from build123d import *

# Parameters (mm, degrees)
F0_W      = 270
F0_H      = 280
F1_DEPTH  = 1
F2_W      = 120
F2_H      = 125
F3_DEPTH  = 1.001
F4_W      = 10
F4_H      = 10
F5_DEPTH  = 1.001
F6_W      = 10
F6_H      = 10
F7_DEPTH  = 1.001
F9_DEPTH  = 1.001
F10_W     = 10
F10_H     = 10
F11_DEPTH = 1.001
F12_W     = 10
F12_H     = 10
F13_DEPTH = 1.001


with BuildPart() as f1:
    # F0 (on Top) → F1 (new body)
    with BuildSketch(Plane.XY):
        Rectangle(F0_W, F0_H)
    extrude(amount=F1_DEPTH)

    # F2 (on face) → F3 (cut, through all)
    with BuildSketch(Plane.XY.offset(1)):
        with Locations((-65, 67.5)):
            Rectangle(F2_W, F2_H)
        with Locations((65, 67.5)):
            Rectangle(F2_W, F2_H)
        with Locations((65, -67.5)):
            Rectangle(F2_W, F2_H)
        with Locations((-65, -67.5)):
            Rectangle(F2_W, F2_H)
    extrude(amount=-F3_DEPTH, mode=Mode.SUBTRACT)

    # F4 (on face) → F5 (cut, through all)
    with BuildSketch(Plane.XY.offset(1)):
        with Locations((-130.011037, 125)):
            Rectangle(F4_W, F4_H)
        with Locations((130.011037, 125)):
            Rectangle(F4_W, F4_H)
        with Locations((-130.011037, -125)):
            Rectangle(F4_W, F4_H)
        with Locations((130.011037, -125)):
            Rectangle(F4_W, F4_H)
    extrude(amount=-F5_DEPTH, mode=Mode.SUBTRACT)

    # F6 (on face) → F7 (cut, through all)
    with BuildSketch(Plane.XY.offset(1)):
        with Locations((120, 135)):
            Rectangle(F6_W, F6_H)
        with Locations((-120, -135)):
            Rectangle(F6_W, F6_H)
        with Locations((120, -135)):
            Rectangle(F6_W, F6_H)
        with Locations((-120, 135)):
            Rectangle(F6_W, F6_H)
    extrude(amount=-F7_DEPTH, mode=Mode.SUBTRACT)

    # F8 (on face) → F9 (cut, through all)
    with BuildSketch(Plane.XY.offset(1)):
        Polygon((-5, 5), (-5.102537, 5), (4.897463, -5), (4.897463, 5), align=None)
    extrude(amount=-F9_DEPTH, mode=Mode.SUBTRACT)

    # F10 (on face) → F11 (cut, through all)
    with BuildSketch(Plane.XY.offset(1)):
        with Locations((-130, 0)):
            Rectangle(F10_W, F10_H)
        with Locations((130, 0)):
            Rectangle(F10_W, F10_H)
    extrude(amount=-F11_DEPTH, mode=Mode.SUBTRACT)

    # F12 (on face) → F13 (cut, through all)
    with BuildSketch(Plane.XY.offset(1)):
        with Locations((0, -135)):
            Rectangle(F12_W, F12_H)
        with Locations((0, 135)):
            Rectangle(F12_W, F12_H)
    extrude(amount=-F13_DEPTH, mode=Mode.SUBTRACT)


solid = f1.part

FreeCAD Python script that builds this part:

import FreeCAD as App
import Part
import Sketcher

V = App.Vector

doc = App.newDocument("Part")
body = doc.addObject("PartDesign::Body", "Body")
body.AllowCompound = True

sketch1 = body.newObject("Sketcher::SketchObject", "Sketch")
sketch1.AttachmentSupport = (doc.getObject("XY_Plane"), [""])
sketch1.MapMode = "FlatFace"
sketch1.addGeometry(Part.LineSegment(V(-135, 140, 0), V(-135, -140, 0)), False)
sketch1.addGeometry(Part.LineSegment(V(-135, -140, 0), V(135, -140, 0)), False)
sketch1.addGeometry(Part.LineSegment(V(135, -140, 0), V(135, 140, 0)), False)
sketch1.addGeometry(Part.LineSegment(V(135, 140, 0), V(-135, 140, 0)), False)
sketch1.addConstraint(Sketcher.Constraint("Coincident", 0, 2, 1, 1))
sketch1.addConstraint(Sketcher.Constraint("Coincident", 1, 2, 2, 1))
sketch1.addConstraint(Sketcher.Constraint("Coincident", 2, 2, 3, 1))
sketch1.addConstraint(Sketcher.Constraint("Coincident", 3, 2, 0, 1))
sketch1.addConstraint(Sketcher.Constraint("Vertical", 0))
sketch1.addConstraint(Sketcher.Constraint("Horizontal", 1))
sketch1.addConstraint(Sketcher.Constraint("Vertical", 2))
sketch1.addConstraint(Sketcher.Constraint("Horizontal", 3))
sketch1.addConstraint(Sketcher.Constraint("Symmetric", 0, 2, 2, 2, -1, 1))
sketch1.addConstraint(Sketcher.Constraint("DistanceX", 1, 1, 1, 2, 270.0))
sketch1.addConstraint(Sketcher.Constraint("DistanceY", 0, 2, 0, 1, 280.0))
pad1 = body.newObject("PartDesign::Pad", "Pad")
pad1.Profile = sketch1
pad1.Length = 1

sketch2 = body.newObject("Sketcher::SketchObject", "Sketch001")
sketch2.AttachmentSupport = (doc.getObject("XY_Plane"), [""])
sketch2.MapMode = "FlatFace"
sketch2.AttachmentOffset = App.Placement(V(0, 0, 1), App.Rotation())
sketch2.addGeometry(Part.LineSegment(V(-125, 130, 0), V(-125, 5, 0)), False)
sketch2.addGeometry(Part.LineSegment(V(-125, 5, 0), V(-5, 5, 0)), False)
sketch2.addGeometry(Part.LineSegment(V(-5, 5, 0), V(-5, 130, 0)), False)
sketch2.addGeometry(Part.LineSegment(V(-5, 130, 0), V(-125, 130, 0)), False)
sketch2.addGeometry(Part.LineSegment(V(5, 130, 0), V(5, 5, 0)), False)
sketch2.addGeometry(Part.LineSegment(V(5, 5, 0), V(125, 5, 0)), False)
sketch2.addGeometry(Part.LineSegment(V(125, 5, 0), V(125, 130, 0)), False)
sketch2.addGeometry(Part.LineSegment(V(125, 130, 0), V(5, 130, 0)), False)
sketch2.addGeometry(Part.LineSegment(V(5, -5, 0), V(5, -130, 0)), False)
sketch2.addGeometry(Part.LineSegment(V(5, -130, 0), V(125, -130, 0)), False)
sketch2.addGeometry(Part.LineSegment(V(125, -130, 0), V(125, -5, 0)), False)
sketch2.addGeometry(Part.LineSegment(V(125, -5, 0), V(5, -5, 0)), False)
sketch2.addGeometry(Part.LineSegment(V(-125, -5, 0), V(-125, -130, 0)), False)
sketch2.addGeometry(Part.LineSegment(V(-125, -130, 0), V(-5, -130, 0)), False)
sketch2.addGeometry(Part.LineSegment(V(-5, -130, 0), V(-5, -5, 0)), False)
sketch2.addGeometry(Part.LineSegment(V(-5, -5, 0), V(-125, -5, 0)), False)
sketch2.addConstraint(Sketcher.Constraint("Coincident", 0, 2, 1, 1))
sketch2.addConstraint(Sketcher.Constraint("Coincident", 1, 2, 2, 1))
sketch2.addConstraint(Sketcher.Constraint("Coincident", 2, 2, 3, 1))
sketch2.addConstraint(Sketcher.Constraint("Coincident", 3, 2, 0, 1))
sketch2.addConstraint(Sketcher.Constraint("Coincident", 4, 2, 5, 1))
sketch2.addConstraint(Sketcher.Constraint("Coincident", 5, 2, 6, 1))
sketch2.addConstraint(Sketcher.Constraint("Coincident", 6, 2, 7, 1))
sketch2.addConstraint(Sketcher.Constraint("Coincident", 7, 2, 4, 1))
sketch2.addConstraint(Sketcher.Constraint("Coincident", 8, 2, 9, 1))
sketch2.addConstraint(Sketcher.Constraint("Coincident", 9, 2, 10, 1))
sketch2.addConstraint(Sketcher.Constraint("Coincident", 10, 2, 11, 1))
sketch2.addConstraint(Sketcher.Constraint("Coincident", 11, 2, 8, 1))
sketch2.addConstraint(Sketcher.Constraint("Coincident", 12, 2, 13, 1))
sketch2.addConstraint(Sketcher.Constraint("Coincident", 13, 2, 14, 1))
sketch2.addConstraint(Sketcher.Constraint("Coincident", 14, 2, 15, 1))
sketch2.addConstraint(Sketcher.Constraint("Coincident", 15, 2, 12, 1))
sketch2.addConstraint(Sketcher.Constraint("Vertical", 0))
sketch2.addConstraint(Sketcher.Constraint("Horizontal", 1))
sketch2.addConstraint(Sketcher.Constraint("Vertical", 2))
sketch2.addConstraint(Sketcher.Constraint("Horizontal", 3))
sketch2.addConstraint(Sketcher.Constraint("Vertical", 4))
sketch2.addConstraint(Sketcher.Constraint("Horizontal", 5))
sketch2.addConstraint(Sketcher.Constraint("Vertical", 6))
sketch2.addConstraint(Sketcher.Constraint("Horizontal", 7))
sketch2.addConstraint(Sketcher.Constraint("Vertical", 8))
sketch2.addConstraint(Sketcher.Constraint("Horizontal", 9))
sketch2.addConstraint(Sketcher.Constraint("Vertical", 10))
sketch2.addConstraint(Sketcher.Constraint("Horizontal", 11))
sketch2.addConstraint(Sketcher.Constraint("Vertical", 12))
sketch2.addConstraint(Sketcher.Constraint("Horizontal", 13))
sketch2.addConstraint(Sketcher.Constraint("Vertical", 14))
sketch2.addConstraint(Sketcher.Constraint("Horizontal", 15))
sketch2.addConstraint(Sketcher.Constraint("Symmetric", 2, 2, 8, 2, -1, 1))
sketch2.addConstraint(Sketcher.Constraint("Symmetric", 0, 2, 10, 2, -1, 1))
sketch2.addConstraint(Sketcher.Constraint("Symmetric", 6, 2, 12, 2, -1, 1))
sketch2.addConstraint(Sketcher.Constraint("Symmetric", 4, 2, 14, 2, -1, 1))
sketch2.addConstraint(Sketcher.Constraint("Symmetric", 1, 2, 4, 2, -2))
sketch2.addConstraint(Sketcher.Constraint("Symmetric", 3, 2, 6, 2, -2))
sketch2.addConstraint(Sketcher.Constraint("DistanceX", 1, 1, 1, 2, 120.0))
sketch2.addConstraint(Sketcher.Constraint("DistanceY", 0, 2, 0, 1, 125.0))
sketch2.addConstraint(Sketcher.Constraint("DistanceX", 0, 2, -1, 1, 125.0))
sketch2.addConstraint(Sketcher.Constraint("DistanceY", -1, 1, 0, 2, 5.0))
pocket1 = body.newObject("PartDesign::Pocket", "Pocket")
pocket1.Profile = sketch2
pocket1.Type = "ThroughAll"

sketch3 = body.newObject("Sketcher::SketchObject", "Sketch002")
sketch3.AttachmentSupport = (doc.getObject("XY_Plane"), [""])
sketch3.MapMode = "FlatFace"
sketch3.AttachmentOffset = App.Placement(V(0, 0, 1), App.Rotation())
sketch3.addGeometry(Part.LineSegment(V(-135, 130, 0), V(-135, 120, 0)), False)
sketch3.addGeometry(Part.LineSegment(V(-135, 120, 0), V(-125, 120, 0)), False)
sketch3.addGeometry(Part.LineSegment(V(-125, 120, 0), V(-125, 130, 0)), False)
sketch3.addGeometry(Part.LineSegment(V(-125, 130, 0), V(-135, 130, 0)), False)
sketch3.addGeometry(Part.LineSegment(V(125, 130, 0), V(125, 120, 0)), False)
sketch3.addGeometry(Part.LineSegment(V(125, 120, 0), V(135, 120, 0)), False)
sketch3.addGeometry(Part.LineSegment(V(135, 120, 0), V(135, 130, 0)), False)
sketch3.addGeometry(Part.LineSegment(V(135, 130, 0), V(125, 130, 0)), False)
sketch3.addGeometry(Part.LineSegment(V(-135, -120, 0), V(-135, -130, 0)), False)
sketch3.addGeometry(Part.LineSegment(V(-135, -130, 0), V(-125, -130, 0)), False)
sketch3.addGeometry(Part.LineSegment(V(-125, -130, 0), V(-125, -120, 0)), False)
sketch3.addGeometry(Part.LineSegment(V(-125, -120, 0), V(-135, -120, 0)), False)
sketch3.addGeometry(Part.LineSegment(V(125, -120, 0), V(125, -130, 0)), False)
sketch3.addGeometry(Part.LineSegment(V(125, -130, 0), V(135, -130, 0)), False)
sketch3.addGeometry(Part.LineSegment(V(135, -130, 0), V(135, -120, 0)), False)
sketch3.addGeometry(Part.LineSegment(V(135, -120, 0), V(125, -120, 0)), False)
sketch3.addConstraint(Sketcher.Constraint("Coincident", 0, 2, 1, 1))
sketch3.addConstraint(Sketcher.Constraint("Coincident", 1, 2, 2, 1))
sketch3.addConstraint(Sketcher.Constraint("Coincident", 2, 2, 3, 1))
sketch3.addConstraint(Sketcher.Constraint("Coincident", 3, 2, 0, 1))
sketch3.addConstraint(Sketcher.Constraint("Coincident", 4, 2, 5, 1))
sketch3.addConstraint(Sketcher.Constraint("Coincident", 5, 2, 6, 1))
sketch3.addConstraint(Sketcher.Constraint("Coincident", 6, 2, 7, 1))
sketch3.addConstraint(Sketcher.Constraint("Coincident", 7, 2, 4, 1))
sketch3.addConstraint(Sketcher.Constraint("Coincident", 8, 2, 9, 1))
sketch3.addConstraint(Sketcher.Constraint("Coincident", 9, 2, 10, 1))
sketch3.addConstraint(Sketcher.Constraint("Coincident", 10, 2, 11, 1))
sketch3.addConstraint(Sketcher.Constraint("Coincident", 11, 2, 8, 1))
sketch3.addConstraint(Sketcher.Constraint("Coincident", 12, 2, 13, 1))
sketch3.addConstraint(Sketcher.Constraint("Coincident", 13, 2, 14, 1))
sketch3.addConstraint(Sketcher.Constraint("Coincident", 14, 2, 15, 1))
sketch3.addConstraint(Sketcher.Constraint("Coincident", 15, 2, 12, 1))
sketch3.addConstraint(Sketcher.Constraint("Vertical", 0))
sketch3.addConstraint(Sketcher.Constraint("Horizontal", 1))
sketch3.addConstraint(Sketcher.Constraint("Vertical", 2))
sketch3.addConstraint(Sketcher.Constraint("Horizontal", 3))
sketch3.addConstraint(Sketcher.Constraint("Vertical", 4))
sketch3.addConstraint(Sketcher.Constraint("Horizontal", 5))
sketch3.addConstraint(Sketcher.Constraint("Vertical", 6))
sketch3.addConstraint(Sketcher.Constraint("Horizontal", 7))
sketch3.addConstraint(Sketcher.Constraint("Vertical", 8))
sketch3.addConstraint(Sketcher.Constraint("Horizontal", 9))
sketch3.addConstraint(Sketcher.Constraint("Vertical", 10))
sketch3.addConstraint(Sketcher.Constraint("Horizontal", 11))
sketch3.addConstraint(Sketcher.Constraint("Vertical", 12))
sketch3.addConstraint(Sketcher.Constraint("Horizontal", 13))
sketch3.addConstraint(Sketcher.Constraint("Vertical", 14))
sketch3.addConstraint(Sketcher.Constraint("Horizontal", 15))
sketch3.addConstraint(Sketcher.Constraint("Symmetric", 6, 2, 8, 2, -1, 1))
sketch3.addConstraint(Sketcher.Constraint("Symmetric", 4, 2, 10, 2, -1, 1))
sketch3.addConstraint(Sketcher.Constraint("Symmetric", 2, 2, 12, 2, -1, 1))
sketch3.addConstraint(Sketcher.Constraint("Symmetric", 0, 2, 14, 2, -1, 1))
sketch3.addConstraint(Sketcher.Constraint("Symmetric", 1, 2, 4, 2, -2))
sketch3.addConstraint(Sketcher.Constraint("Symmetric", 3, 2, 6, 2, -2))
sketch3.addConstraint(Sketcher.Constraint("Equal", 15, 0))
sketch3.addConstraint(Sketcher.Constraint("DistanceX", 1, 1, 1, 2, 10.0))
sketch3.addConstraint(Sketcher.Constraint("DistanceY", -1, 1, 0, 2, 120.0))
sketch3.addConstraint(Sketcher.Constraint("DistanceX", 0, 2, -1, 1, 135.011037))
pocket2 = body.newObject("PartDesign::Pocket", "Pocket001")
pocket2.Profile = sketch3
pocket2.Type = "ThroughAll"

sketch4 = body.newObject("Sketcher::SketchObject", "Sketch003")
sketch4.AttachmentSupport = (doc.getObject("XY_Plane"), [""])
sketch4.MapMode = "FlatFace"
sketch4.AttachmentOffset = App.Placement(V(0, 0, 1), App.Rotation())
sketch4.addGeometry(Part.LineSegment(V(115, 140, 0), V(115, 130, 0)), False)
sketch4.addGeometry(Part.LineSegment(V(115, 130, 0), V(125, 130, 0)), False)
sketch4.addGeometry(Part.LineSegment(V(125, 130, 0), V(125, 140, 0)), False)
sketch4.addGeometry(Part.LineSegment(V(125, 140, 0), V(115, 140, 0)), False)
sketch4.addGeometry(Part.LineSegment(V(-125, -130, 0), V(-125, -140, 0)), False)
sketch4.addGeometry(Part.LineSegment(V(-125, -140, 0), V(-115, -140, 0)), False)
sketch4.addGeometry(Part.LineSegment(V(-115, -140, 0), V(-115, -130, 0)), False)
sketch4.addGeometry(Part.LineSegment(V(-115, -130, 0), V(-125, -130, 0)), False)
sketch4.addGeometry(Part.LineSegment(V(115, -130, 0), V(115, -140, 0)), False)
sketch4.addGeometry(Part.LineSegment(V(115, -140, 0), V(125, -140, 0)), False)
sketch4.addGeometry(Part.LineSegment(V(125, -140, 0), V(125, -130, 0)), False)
sketch4.addGeometry(Part.LineSegment(V(125, -130, 0), V(115, -130, 0)), False)
sketch4.addGeometry(Part.LineSegment(V(-125, 140, 0), V(-125, 130, 0)), False)
sketch4.addGeometry(Part.LineSegment(V(-125, 130, 0), V(-115, 130, 0)), False)
sketch4.addGeometry(Part.LineSegment(V(-115, 130, 0), V(-115, 140, 0)), False)
sketch4.addGeometry(Part.LineSegment(V(-115, 140, 0), V(-125, 140, 0)), False)
sketch4.addConstraint(Sketcher.Constraint("Coincident", 0, 2, 1, 1))
sketch4.addConstraint(Sketcher.Constraint("Coincident", 1, 2, 2, 1))
sketch4.addConstraint(Sketcher.Constraint("Coincident", 2, 2, 3, 1))
sketch4.addConstraint(Sketcher.Constraint("Coincident", 3, 2, 0, 1))
sketch4.addConstraint(Sketcher.Constraint("Coincident", 4, 2, 5, 1))
sketch4.addConstraint(Sketcher.Constraint("Coincident", 5, 2, 6, 1))
sketch4.addConstraint(Sketcher.Constraint("Coincident", 6, 2, 7, 1))
sketch4.addConstraint(Sketcher.Constraint("Coincident", 7, 2, 4, 1))
sketch4.addConstraint(Sketcher.Constraint("Coincident", 8, 2, 9, 1))
sketch4.addConstraint(Sketcher.Constraint("Coincident", 9, 2, 10, 1))
sketch4.addConstraint(Sketcher.Constraint("Coincident", 10, 2, 11, 1))
sketch4.addConstraint(Sketcher.Constraint("Coincident", 11, 2, 8, 1))
sketch4.addConstraint(Sketcher.Constraint("Coincident", 12, 2, 13, 1))
sketch4.addConstraint(Sketcher.Constraint("Coincident", 13, 2, 14, 1))
sketch4.addConstraint(Sketcher.Constraint("Coincident", 14, 2, 15, 1))
sketch4.addConstraint(Sketcher.Constraint("Coincident", 15, 2, 12, 1))
sketch4.addConstraint(Sketcher.Constraint("Vertical", 0))
sketch4.addConstraint(Sketcher.Constraint("Horizontal", 1))
sketch4.addConstraint(Sketcher.Constraint("Vertical", 2))
sketch4.addConstraint(Sketcher.Constraint("Horizontal", 3))
sketch4.addConstraint(Sketcher.Constraint("Vertical", 4))
sketch4.addConstraint(Sketcher.Constraint("Horizontal", 5))
sketch4.addConstraint(Sketcher.Constraint("Vertical", 6))
sketch4.addConstraint(Sketcher.Constraint("Horizontal", 7))
sketch4.addConstraint(Sketcher.Constraint("Vertical", 8))
sketch4.addConstraint(Sketcher.Constraint("Horizontal", 9))
sketch4.addConstraint(Sketcher.Constraint("Vertical", 10))
sketch4.addConstraint(Sketcher.Constraint("Horizontal", 11))
sketch4.addConstraint(Sketcher.Constraint("Vertical", 12))
sketch4.addConstraint(Sketcher.Constraint("Horizontal", 13))
sketch4.addConstraint(Sketcher.Constraint("Vertical", 14))
sketch4.addConstraint(Sketcher.Constraint("Horizontal", 15))
sketch4.addConstraint(Sketcher.Constraint("Symmetric", 2, 2, 4, 2, -1, 1))
sketch4.addConstraint(Sketcher.Constraint("Symmetric", 0, 2, 6, 2, -1, 1))
sketch4.addConstraint(Sketcher.Constraint("Symmetric", 10, 2, 12, 2, -1, 1))
sketch4.addConstraint(Sketcher.Constraint("Symmetric", 8, 2, 14, 2, -1, 1))
sketch4.addConstraint(Sketcher.Constraint("Symmetric", 5, 2, 8, 2, -2))
sketch4.addConstraint(Sketcher.Constraint("Symmetric", 7, 2, 10, 2, -2))
sketch4.addConstraint(Sketcher.Constraint("Equal", 15, 0))
sketch4.addConstraint(Sketcher.Constraint("DistanceX", 1, 1, 1, 2, 10.0))
sketch4.addConstraint(Sketcher.Constraint("DistanceX", -1, 1, 0, 2, 115.0))
sketch4.addConstraint(Sketcher.Constraint("DistanceY", -1, 1, 0, 2, 130.0))
pocket3 = body.newObject("PartDesign::Pocket", "Pocket002")
pocket3.Profile = sketch4
pocket3.Type = "ThroughAll"

sketch5 = body.newObject("Sketcher::SketchObject", "Sketch004")
sketch5.AttachmentSupport = (doc.getObject("XY_Plane"), [""])
sketch5.MapMode = "FlatFace"
sketch5.AttachmentOffset = App.Placement(V(0, 0, 1), App.Rotation())
sketch5.addGeometry(Part.LineSegment(V(-5, 5, 0), V(5, -5, 0)), False)
sketch5.addGeometry(Part.LineSegment(V(5, -5, 0), V(5, 5, 0)), False)
sketch5.addGeometry(Part.LineSegment(V(5, 5, 0), V(-5, 5, 0)), False)
sketch5.addConstraint(Sketcher.Constraint("Coincident", 0, 2, 1, 1))
sketch5.addConstraint(Sketcher.Constraint("Coincident", 1, 2, 2, 1))
sketch5.addConstraint(Sketcher.Constraint("Coincident", 2, 2, 0, 1))
sketch5.addConstraint(Sketcher.Constraint("Vertical", 1))
sketch5.addConstraint(Sketcher.Constraint("Horizontal", 2))
sketch5.addConstraint(Sketcher.Constraint("Equal", 2, 1))
sketch5.addConstraint(Sketcher.Constraint("DistanceX", 2, 2, 2, 1, 10.0))
sketch5.addConstraint(Sketcher.Constraint("DistanceY", 0, 2, -1, 1, 5.0))
sketch5.addConstraint(Sketcher.Constraint("DistanceX", -1, 1, 0, 2, 4.897463))
pocket4 = body.newObject("PartDesign::Pocket", "Pocket003")
pocket4.Profile = sketch5
pocket4.Type = "ThroughAll"

sketch6 = body.newObject("Sketcher::SketchObject", "Sketch005")
sketch6.AttachmentSupport = (doc.getObject("XY_Plane"), [""])
sketch6.MapMode = "FlatFace"
sketch6.AttachmentOffset = App.Placement(V(0, 0, 1), App.Rotation())
sketch6.addGeometry(Part.LineSegment(V(-135, 5, 0), V(-135, -5, 0)), False)
sketch6.addGeometry(Part.LineSegment(V(-135, -5, 0), V(-125, -5, 0)), False)
sketch6.addGeometry(Part.LineSegment(V(-125, -5, 0), V(-125, 5, 0)), False)
sketch6.addGeometry(Part.LineSegment(V(-125, 5, 0), V(-135, 5, 0)), False)
sketch6.addGeometry(Part.LineSegment(V(125, 5, 0), V(125, -5, 0)), False)
sketch6.addGeometry(Part.LineSegment(V(125, -5, 0), V(135, -5, 0)), False)
sketch6.addGeometry(Part.LineSegment(V(135, -5, 0), V(135, 5, 0)), False)
sketch6.addGeometry(Part.LineSegment(V(135, 5, 0), V(125, 5, 0)), False)
sketch6.addConstraint(Sketcher.Constraint("Coincident", 0, 2, 1, 1))
sketch6.addConstraint(Sketcher.Constraint("Coincident", 1, 2, 2, 1))
sketch6.addConstraint(Sketcher.Constraint("Coincident", 2, 2, 3, 1))
sketch6.addConstraint(Sketcher.Constraint("Coincident", 3, 2, 0, 1))
sketch6.addConstraint(Sketcher.Constraint("Coincident", 4, 2, 5, 1))
sketch6.addConstraint(Sketcher.Constraint("Coincident", 5, 2, 6, 1))
sketch6.addConstraint(Sketcher.Constraint("Coincident", 6, 2, 7, 1))
sketch6.addConstraint(Sketcher.Constraint("Coincident", 7, 2, 4, 1))
sketch6.addConstraint(Sketcher.Constraint("Vertical", 0))
sketch6.addConstraint(Sketcher.Constraint("Horizontal", 1))
sketch6.addConstraint(Sketcher.Constraint("Vertical", 2))
sketch6.addConstraint(Sketcher.Constraint("Horizontal", 3))
sketch6.addConstraint(Sketcher.Constraint("Vertical", 4))
sketch6.addConstraint(Sketcher.Constraint("Horizontal", 5))
sketch6.addConstraint(Sketcher.Constraint("Vertical", 6))
sketch6.addConstraint(Sketcher.Constraint("Horizontal", 7))
sketch6.addConstraint(Sketcher.Constraint("Symmetric", 2, 2, 4, 2, -1, 1))
sketch6.addConstraint(Sketcher.Constraint("Symmetric", 0, 2, 6, 2, -1, 1))
sketch6.addConstraint(Sketcher.Constraint("Horizontal", 1, 2, 4, 2))
sketch6.addConstraint(Sketcher.Constraint("Equal", 7, 0))
sketch6.addConstraint(Sketcher.Constraint("DistanceX", 1, 1, 1, 2, 10.0))
sketch6.addConstraint(Sketcher.Constraint("DistanceX", 0, 2, -1, 1, 135.0))
pocket5 = body.newObject("PartDesign::Pocket", "Pocket004")
pocket5.Profile = sketch6
pocket5.Type = "ThroughAll"

sketch7 = body.newObject("Sketcher::SketchObject", "Sketch006")
sketch7.AttachmentSupport = (doc.getObject("XY_Plane"), [""])
sketch7.MapMode = "FlatFace"
sketch7.AttachmentOffset = App.Placement(V(0, 0, 1), App.Rotation())
sketch7.addGeometry(Part.LineSegment(V(-5, -130, 0), V(-5, -140, 0)), False)
sketch7.addGeometry(Part.LineSegment(V(-5, -140, 0), V(5, -140, 0)), False)
sketch7.addGeometry(Part.LineSegment(V(5, -140, 0), V(5, -130, 0)), False)
sketch7.addGeometry(Part.LineSegment(V(5, -130, 0), V(-5, -130, 0)), False)
sketch7.addGeometry(Part.LineSegment(V(-5, 140, 0), V(-5, 130, 0)), False)
sketch7.addGeometry(Part.LineSegment(V(-5, 130, 0), V(5, 130, 0)), False)
sketch7.addGeometry(Part.LineSegment(V(5, 130, 0), V(5, 140, 0)), False)
sketch7.addGeometry(Part.LineSegment(V(5, 140, 0), V(-5, 140, 0)), False)
sketch7.addConstraint(Sketcher.Constraint("Coincident", 0, 2, 1, 1))
sketch7.addConstraint(Sketcher.Constraint("Coincident", 1, 2, 2, 1))
sketch7.addConstraint(Sketcher.Constraint("Coincident", 2, 2, 3, 1))
sketch7.addConstraint(Sketcher.Constraint("Coincident", 3, 2, 0, 1))
sketch7.addConstraint(Sketcher.Constraint("Coincident", 4, 2, 5, 1))
sketch7.addConstraint(Sketcher.Constraint("Coincident", 5, 2, 6, 1))
sketch7.addConstraint(Sketcher.Constraint("Coincident", 6, 2, 7, 1))
sketch7.addConstraint(Sketcher.Constraint("Coincident", 7, 2, 4, 1))
sketch7.addConstraint(Sketcher.Constraint("Vertical", 0))
sketch7.addConstraint(Sketcher.Constraint("Horizontal", 1))
sketch7.addConstraint(Sketcher.Constraint("Vertical", 2))
sketch7.addConstraint(Sketcher.Constraint("Horizontal", 3))
sketch7.addConstraint(Sketcher.Constraint("Vertical", 4))
sketch7.addConstraint(Sketcher.Constraint("Horizontal", 5))
sketch7.addConstraint(Sketcher.Constraint("Vertical", 6))
sketch7.addConstraint(Sketcher.Constraint("Horizontal", 7))
sketch7.addConstraint(Sketcher.Constraint("Symmetric", 2, 2, 4, 2, -1, 1))
sketch7.addConstraint(Sketcher.Constraint("Symmetric", 0, 2, 6, 2, -1, 1))
sketch7.addConstraint(Sketcher.Constraint("Vertical", 3, 2, 4, 2))
sketch7.addConstraint(Sketcher.Constraint("Equal", 7, 0))
sketch7.addConstraint(Sketcher.Constraint("DistanceX", 1, 1, 1, 2, 10.0))
sketch7.addConstraint(Sketcher.Constraint("DistanceY", 0, 2, -1, 1, 140.0))
pocket6 = body.newObject("PartDesign::Pocket", "Pocket005")
pocket6.Profile = sketch7
pocket6.Type = "ThroughAll"

doc.recompute()
